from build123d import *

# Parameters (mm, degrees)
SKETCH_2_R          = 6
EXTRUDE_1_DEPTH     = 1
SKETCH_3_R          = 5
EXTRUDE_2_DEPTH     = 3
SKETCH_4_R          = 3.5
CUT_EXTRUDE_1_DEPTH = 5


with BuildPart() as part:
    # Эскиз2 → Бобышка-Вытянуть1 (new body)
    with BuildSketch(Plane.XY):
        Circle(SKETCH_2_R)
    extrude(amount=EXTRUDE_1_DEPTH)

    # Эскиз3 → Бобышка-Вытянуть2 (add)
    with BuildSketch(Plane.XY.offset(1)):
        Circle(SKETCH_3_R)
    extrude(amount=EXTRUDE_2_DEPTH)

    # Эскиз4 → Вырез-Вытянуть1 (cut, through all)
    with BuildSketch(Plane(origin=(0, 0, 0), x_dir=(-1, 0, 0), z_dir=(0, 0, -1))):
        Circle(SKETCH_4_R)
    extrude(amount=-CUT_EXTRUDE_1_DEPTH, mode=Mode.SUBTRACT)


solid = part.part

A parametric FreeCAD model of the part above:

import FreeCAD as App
import Part
import Sketcher

V = App.Vector
Q = App.Units.Quantity

doc = App.newDocument("Part")
body = doc.addObject("PartDesign::Body", "Body")

# Sketch on XY plane
sketch1 = body.newObject("Sketcher::SketchObject", "Sketch")
sketch1.AttachmentSupport = (doc.getObject("XY_Plane"), [""])
sketch1.MapMode = "FlatFace"
sketch1.addGeometry(Part.Circle(V(0, 0, 0), V(0, 0, 1), 6), False)
sketch1.addConstraint(Sketcher.Constraint("Coincident", 0, 3, -1, 1))
sketch1.addConstraint(Sketcher.Constraint("Diameter", 0, Q("12 mm")))
pad1 = body.newObject("PartDesign::Pad", "Pad")
pad1.Profile = sketch1
pad1.Length = 1

# Sketch on XY plane
sketch2 = body.newObject("Sketcher::SketchObject", "Sketch001")
sketch2.AttachmentSupport = (doc.getObject("XY_Plane"), [""])
sketch2.MapMode = "FlatFace"
sketch2.AttachmentOffset = App.Placement(V(0, 0, 1), App.Rotation())
sketch2.addGeometry(Part.Circle(V(0, 0, 0), V(0, 0, 1), 5), False)
sketch2.addConstraint(Sketcher.Constraint("Coincident", 0, 3, -1, 1))
sketch2.addConstraint(Sketcher.Constraint("Diameter", 0, Q("10 mm")))
pad2 = body.newObject("PartDesign::Pad", "Pad001")
pad2.Profile = sketch2
pad2.Length = 3

# Sketch on XY plane
sketch3 = body.newObject("Sketcher::SketchObject", "Sketch002")
sketch3.AttachmentSupport = (doc.getObject("XY_Plane"), [""])
sketch3.MapMode = "FlatFace"
sketch3.addGeometry(Part.Circle(V(0, 0, 0), V(0, 0, 1), 3.5), False)
sketch3.addConstraint(Sketcher.Constraint("Coincident", 0, 3, -1, 1))
sketch3.addConstraint(Sketcher.Constraint("Diameter", 0, Q("7 mm")))
pocket1 = body.newObject("PartDesign::Pocket", "Pocket")
pocket1.Profile = sketch3
pocket1.Type = "ThroughAll"
pocket1.Reversed = True

doc.recompute()
